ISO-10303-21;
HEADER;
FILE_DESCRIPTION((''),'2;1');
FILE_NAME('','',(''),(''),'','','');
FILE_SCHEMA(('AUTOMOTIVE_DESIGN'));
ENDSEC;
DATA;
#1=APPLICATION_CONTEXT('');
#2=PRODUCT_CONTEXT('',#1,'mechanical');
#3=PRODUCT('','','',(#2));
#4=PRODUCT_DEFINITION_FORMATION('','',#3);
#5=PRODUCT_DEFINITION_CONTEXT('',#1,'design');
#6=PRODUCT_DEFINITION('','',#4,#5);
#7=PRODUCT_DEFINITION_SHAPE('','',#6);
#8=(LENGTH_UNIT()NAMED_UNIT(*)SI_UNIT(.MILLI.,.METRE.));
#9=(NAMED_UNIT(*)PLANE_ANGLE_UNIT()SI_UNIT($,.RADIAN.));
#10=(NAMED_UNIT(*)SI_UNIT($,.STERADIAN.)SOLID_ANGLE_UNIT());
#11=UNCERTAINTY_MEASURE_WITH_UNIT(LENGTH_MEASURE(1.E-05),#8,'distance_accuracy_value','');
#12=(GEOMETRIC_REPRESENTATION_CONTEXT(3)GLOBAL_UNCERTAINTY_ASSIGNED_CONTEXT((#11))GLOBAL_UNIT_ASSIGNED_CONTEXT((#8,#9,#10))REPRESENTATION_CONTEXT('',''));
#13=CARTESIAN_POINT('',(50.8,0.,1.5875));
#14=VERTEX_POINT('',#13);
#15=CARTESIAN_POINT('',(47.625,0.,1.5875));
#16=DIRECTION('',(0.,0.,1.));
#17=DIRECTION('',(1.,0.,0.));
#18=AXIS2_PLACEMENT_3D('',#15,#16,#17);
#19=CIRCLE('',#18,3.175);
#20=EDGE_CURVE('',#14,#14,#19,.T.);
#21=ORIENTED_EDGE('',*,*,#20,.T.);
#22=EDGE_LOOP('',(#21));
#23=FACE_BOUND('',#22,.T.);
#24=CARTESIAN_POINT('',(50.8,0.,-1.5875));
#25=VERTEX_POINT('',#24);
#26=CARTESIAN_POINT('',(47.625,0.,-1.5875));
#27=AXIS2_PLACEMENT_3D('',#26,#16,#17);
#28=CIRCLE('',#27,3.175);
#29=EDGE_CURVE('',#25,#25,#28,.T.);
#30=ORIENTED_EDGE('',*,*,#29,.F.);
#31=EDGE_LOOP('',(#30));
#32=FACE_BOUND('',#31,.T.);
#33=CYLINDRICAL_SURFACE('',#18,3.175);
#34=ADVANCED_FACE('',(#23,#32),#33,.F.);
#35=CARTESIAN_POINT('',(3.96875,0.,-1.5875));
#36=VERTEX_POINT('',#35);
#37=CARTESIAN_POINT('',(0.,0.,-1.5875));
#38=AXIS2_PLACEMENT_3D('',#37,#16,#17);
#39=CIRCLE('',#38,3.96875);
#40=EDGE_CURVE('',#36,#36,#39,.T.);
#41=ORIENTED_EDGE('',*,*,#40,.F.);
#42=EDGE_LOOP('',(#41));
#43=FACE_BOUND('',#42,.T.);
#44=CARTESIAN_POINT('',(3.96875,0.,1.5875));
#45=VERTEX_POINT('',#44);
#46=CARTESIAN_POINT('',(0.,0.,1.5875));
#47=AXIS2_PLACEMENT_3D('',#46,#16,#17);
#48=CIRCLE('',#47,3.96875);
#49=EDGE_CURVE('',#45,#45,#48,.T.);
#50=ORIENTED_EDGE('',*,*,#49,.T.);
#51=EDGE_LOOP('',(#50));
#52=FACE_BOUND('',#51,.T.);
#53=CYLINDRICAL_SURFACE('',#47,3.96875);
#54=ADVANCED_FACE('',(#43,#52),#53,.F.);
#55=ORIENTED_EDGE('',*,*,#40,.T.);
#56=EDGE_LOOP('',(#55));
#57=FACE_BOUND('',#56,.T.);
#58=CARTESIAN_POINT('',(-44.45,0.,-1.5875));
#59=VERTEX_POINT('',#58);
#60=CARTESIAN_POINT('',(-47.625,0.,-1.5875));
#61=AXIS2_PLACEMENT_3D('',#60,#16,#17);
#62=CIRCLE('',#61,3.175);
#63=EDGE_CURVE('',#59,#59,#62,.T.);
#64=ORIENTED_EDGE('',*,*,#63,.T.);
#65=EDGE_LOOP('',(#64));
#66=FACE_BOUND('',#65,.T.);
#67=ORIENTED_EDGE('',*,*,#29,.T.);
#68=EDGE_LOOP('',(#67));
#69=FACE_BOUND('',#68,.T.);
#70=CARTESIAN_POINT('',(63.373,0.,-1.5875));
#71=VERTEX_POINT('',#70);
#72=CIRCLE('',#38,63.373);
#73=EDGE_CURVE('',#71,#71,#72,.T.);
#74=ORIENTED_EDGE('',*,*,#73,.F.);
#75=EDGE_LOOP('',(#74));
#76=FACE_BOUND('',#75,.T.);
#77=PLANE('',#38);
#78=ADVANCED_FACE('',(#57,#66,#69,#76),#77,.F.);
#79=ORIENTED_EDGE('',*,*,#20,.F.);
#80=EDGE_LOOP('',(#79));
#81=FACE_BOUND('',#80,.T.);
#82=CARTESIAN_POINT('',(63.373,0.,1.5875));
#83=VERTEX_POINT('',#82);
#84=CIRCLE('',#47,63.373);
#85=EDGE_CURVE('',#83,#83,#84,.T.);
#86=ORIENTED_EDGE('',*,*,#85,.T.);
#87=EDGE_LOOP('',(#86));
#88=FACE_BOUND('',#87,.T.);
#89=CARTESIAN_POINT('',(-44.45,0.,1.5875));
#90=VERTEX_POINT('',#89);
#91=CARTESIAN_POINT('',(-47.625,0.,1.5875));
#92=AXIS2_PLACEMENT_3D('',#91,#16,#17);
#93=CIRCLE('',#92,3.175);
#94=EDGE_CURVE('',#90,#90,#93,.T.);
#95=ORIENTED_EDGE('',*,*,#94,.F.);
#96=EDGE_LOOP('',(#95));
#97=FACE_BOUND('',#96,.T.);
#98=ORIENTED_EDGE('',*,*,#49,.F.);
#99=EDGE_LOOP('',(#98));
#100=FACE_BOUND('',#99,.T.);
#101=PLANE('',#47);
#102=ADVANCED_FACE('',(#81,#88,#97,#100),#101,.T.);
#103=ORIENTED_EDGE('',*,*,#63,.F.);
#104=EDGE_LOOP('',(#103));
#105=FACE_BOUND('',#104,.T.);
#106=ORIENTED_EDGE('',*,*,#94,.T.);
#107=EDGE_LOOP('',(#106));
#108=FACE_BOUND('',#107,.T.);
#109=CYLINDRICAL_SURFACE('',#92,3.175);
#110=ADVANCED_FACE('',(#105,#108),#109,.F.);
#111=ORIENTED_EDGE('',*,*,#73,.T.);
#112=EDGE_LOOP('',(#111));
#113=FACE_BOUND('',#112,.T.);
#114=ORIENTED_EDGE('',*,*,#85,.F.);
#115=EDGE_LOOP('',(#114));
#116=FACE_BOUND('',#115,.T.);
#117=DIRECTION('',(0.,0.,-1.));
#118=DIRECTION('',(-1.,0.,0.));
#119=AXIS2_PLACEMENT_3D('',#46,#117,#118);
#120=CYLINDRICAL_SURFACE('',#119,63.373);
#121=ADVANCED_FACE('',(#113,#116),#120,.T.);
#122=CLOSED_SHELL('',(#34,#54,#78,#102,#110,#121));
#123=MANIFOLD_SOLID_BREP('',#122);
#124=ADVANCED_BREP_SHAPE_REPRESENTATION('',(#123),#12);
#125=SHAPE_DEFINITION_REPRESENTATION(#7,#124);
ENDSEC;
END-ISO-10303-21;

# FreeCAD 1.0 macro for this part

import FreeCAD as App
import Part
import Sketcher
Q = App.Units.Quantity

doc = App.newDocument("Part")
body = doc.addObject("PartDesign::Body", "Body")

sketch1 = doc.addObject("Sketcher::SketchObject", "Sketch")
body.addObject(sketch1)
sketch1.AttachmentSupport = (doc.XY_Plane, [""])
sketch1.MapMode = "FlatFace"
sketch1.addGeometry(Part.Circle(App.Vector(0, 0, 0), App.Vector(0, 0, 1), 63), False)
sketch1.addConstraint(Sketcher.Constraint("Coincident", 0, 3, -1, 1))
sketch1.addConstraint(Sketcher.Constraint("Diameter", 0, Q("4.99 in")))
pad1 = doc.addObject("PartDesign::Pad", "Pad")
body.addObject(pad1)
pad1.Profile = sketch1
pad1.Length = Q("0.125 in")
pad1.Midplane = True

sketch2 = doc.addObject("Sketcher::SketchObject", "Sketch001")
body.addObject(sketch2)
sketch2.AttachmentSupport = (doc.XY_Plane, [""])
sketch2.MapMode = "FlatFace"
sketch2.AttachmentOffset = App.Placement(App.Vector(0, 0, 0.0625 * 25.4), App.Rotation())
sketch2.addGeometry(Part.Circle(App.Vector(-47.6, 0, 0), App.Vector(0, 0, 1), 3.2), False)
sketch2.addGeometry(Part.Circle(App.Vector(47.6, 0, 0), App.Vector(0, 0, 1), 3.2), False)
sketch2.addConstraint(Sketcher.Constraint("Equal", 0, 1))
sketch2.addConstraint(Sketcher.Constraint("Symmetric", 0, 3, 1, 3, -1, 1))
sketch2.addConstraint(Sketcher.Constraint("PointOnObject", 0, 3, -1))
sketch2.addConstraint(Sketcher.Constraint("Diameter", 0, Q("0.25 in")))
sketch2.addConstraint(Sketcher.Constraint("DistanceX", 0, 3, 1, 3, Q("3.75 in")))
doc.recompute()
hole = doc.addObject("PartDesign::Hole", "Hole")
body.addObject(hole)
hole.Profile = sketch2
hole.ThreadType = "None"
hole.Diameter = Q("0.25 in")
hole.DepthType = "ThroughAll"

sketch3 = doc.addObject("Sketcher::SketchObject", "Sketch002")
body.addObject(sketch3)
sketch3.AttachmentSupport = (doc.XY_Plane, [""])
sketch3.MapMode = "FlatFace"
sketch3.AttachmentOffset = App.Placement(App.Vector(0, 0, 0.0625 * 25.4), App.Rotation())
sketch3.addGeometry(Part.Circle(App.Vector(0, 0, 0), App.Vector(0, 0, 1), 4), False)
sketch3.addConstraint(Sketcher.Constraint("Coincident", 0, 3, -1, 1))
sketch3.addConstraint(Sketcher.Constraint("Diameter", 0, Q("0.3125 in")))
doc.recompute()
hole2 = doc.addObject("PartDesign::Hole", "Hole001")
body.addObject(hole2)
hole2.Profile = sketch3
hole2.ThreadType = "None"
hole2.Diameter = Q("0.3125 in")
hole2.DepthType = "Dimension"
hole2.Depth = Q("0.13 in")
hole2.DrillPoint = "Flat"

doc.recompute()
